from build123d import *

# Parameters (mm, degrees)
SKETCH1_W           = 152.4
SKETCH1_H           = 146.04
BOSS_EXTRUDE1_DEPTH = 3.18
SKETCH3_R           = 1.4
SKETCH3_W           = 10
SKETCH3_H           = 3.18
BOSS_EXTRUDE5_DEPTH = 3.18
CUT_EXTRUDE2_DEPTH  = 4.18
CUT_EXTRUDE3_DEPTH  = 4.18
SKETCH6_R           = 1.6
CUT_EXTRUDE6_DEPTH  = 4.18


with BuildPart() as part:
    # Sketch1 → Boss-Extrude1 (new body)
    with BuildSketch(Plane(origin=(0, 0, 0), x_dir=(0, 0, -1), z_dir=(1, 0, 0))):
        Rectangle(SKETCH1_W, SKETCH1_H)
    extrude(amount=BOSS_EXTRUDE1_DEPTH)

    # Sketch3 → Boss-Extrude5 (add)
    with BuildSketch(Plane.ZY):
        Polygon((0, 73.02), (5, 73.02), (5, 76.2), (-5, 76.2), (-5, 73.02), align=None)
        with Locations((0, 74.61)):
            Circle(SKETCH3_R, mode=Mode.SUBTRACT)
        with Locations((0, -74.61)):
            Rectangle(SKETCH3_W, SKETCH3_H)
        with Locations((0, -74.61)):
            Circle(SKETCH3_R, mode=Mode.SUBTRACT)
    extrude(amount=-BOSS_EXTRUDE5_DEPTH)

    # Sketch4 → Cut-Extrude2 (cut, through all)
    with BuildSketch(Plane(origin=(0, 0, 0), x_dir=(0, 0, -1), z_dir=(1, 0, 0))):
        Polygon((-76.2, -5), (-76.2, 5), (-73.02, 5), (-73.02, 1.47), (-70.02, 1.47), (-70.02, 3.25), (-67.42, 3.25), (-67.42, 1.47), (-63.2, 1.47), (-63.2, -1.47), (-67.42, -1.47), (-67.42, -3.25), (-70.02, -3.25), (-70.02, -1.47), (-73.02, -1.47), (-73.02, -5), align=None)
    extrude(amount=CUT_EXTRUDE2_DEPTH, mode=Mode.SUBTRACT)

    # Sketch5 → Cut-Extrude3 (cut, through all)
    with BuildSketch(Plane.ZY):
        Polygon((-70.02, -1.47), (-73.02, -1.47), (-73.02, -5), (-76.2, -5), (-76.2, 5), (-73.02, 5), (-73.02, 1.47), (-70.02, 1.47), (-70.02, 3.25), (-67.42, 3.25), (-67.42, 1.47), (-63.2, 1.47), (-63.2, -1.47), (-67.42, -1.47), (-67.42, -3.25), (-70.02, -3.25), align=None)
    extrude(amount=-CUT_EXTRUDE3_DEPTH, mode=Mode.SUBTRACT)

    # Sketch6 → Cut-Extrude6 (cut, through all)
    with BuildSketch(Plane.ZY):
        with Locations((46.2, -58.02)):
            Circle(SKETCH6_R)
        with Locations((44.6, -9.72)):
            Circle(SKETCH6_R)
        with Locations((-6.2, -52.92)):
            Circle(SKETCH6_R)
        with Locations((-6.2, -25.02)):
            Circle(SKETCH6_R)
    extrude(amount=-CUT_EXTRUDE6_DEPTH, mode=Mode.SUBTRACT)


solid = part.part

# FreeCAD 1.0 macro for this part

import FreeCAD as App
import Part
import Sketcher
from FreeCAD import Vector
Q = App.Units.Quantity

doc = App.newDocument("Part")
params = doc.addObject("Spreadsheet::Sheet", "Params")
for row, (alias, value) in enumerate([
    ("sketch1_height", "152.4 mm"),
    ("sketch1_width", "146.04 mm"),
    ("pad1_length", "3.18 mm"),
    ("sketch2_diameter", "2.8 mm"),
    ("sketch2_height", "10 mm"),
    ("sketch2_width", "3.18 mm"),
    ("pad2_length", "3.18 mm"),
    ("sketch3_width", "10 mm"),
    ("sketch3_height", "3 mm"),
    ("sketch3_height2", "2.6 mm"),
    ("sketch3_width2", "3.53 mm"),
    ("sketch3_width3", "1.78 mm"),
    ("sketch4_width", "10 mm"),
    ("sketch4_height", "3 mm"),
    ("sketch4_height2", "2.6 mm"),
    ("sketch4_width2", "1.78 mm"),
    ("sketch4_width3", "2.94 mm"),
    ("sketch5_diameter", "3.2 mm"),
], start=1):
    params.set(f"A{row}", alias)
    params.set(f"B{row}", "=" + value)
    params.setAlias(f"B{row}", alias)

body = doc.addObject("PartDesign::Body", "Body")

sketch1 = doc.addObject("Sketcher::SketchObject", "Sketch")
body.addObject(sketch1)
sketch1.AttachmentSupport = (doc.YZ_Plane, [""])
sketch1.MapMode = "FlatFace"
sketch1.addGeometry([
    Part.LineSegment(Vector(73.02, 76.2, 0), Vector(-73.02, 76.2, 0)),
    Part.LineSegment(Vector(-73.02, 76.2, 0), Vector(-73.02, -76.2, 0)),
    Part.LineSegment(Vector(-73.02, -76.2, 0), Vector(73.02, -76.2, 0)),
    Part.LineSegment(Vector(73.02, -76.2, 0), Vector(73.02, 76.2, 0)),
], False)
sketch1.addConstraint([
    Sketcher.Constraint("Coincident", 0, 2, 1, 1),
    Sketcher.Constraint("Coincident", 1, 2, 2, 1),
    Sketcher.Constraint("Coincident", 2, 2, 3, 1),
    Sketcher.Constraint("Coincident", 3, 2, 0, 1),
    Sketcher.Constraint("Horizontal", 0),
    Sketcher.Constraint("Vertical", 1),
    Sketcher.Constraint("Horizontal", 2),
    Sketcher.Constraint("Vertical", 3),
    Sketcher.Constraint("Symmetric", 0, 2, 2, 2, -1, 1),
    Sketcher.Constraint("DistanceY", 1, 2, 1, 1, Q("152.4 mm")),
    Sketcher.Constraint("DistanceX", 0, 2, 0, 1, Q("146.04 mm")),
])
sketch1.setExpression("Constraints[9]", "Params.sketch1_height")
sketch1.setExpression("Constraints[10]", "Params.sketch1_width")
pad1 = doc.addObject("PartDesign::Pad", "Pad")
body.addObject(pad1)
pad1.Profile = sketch1
pad1.setExpression("Length", "Params.pad1_length")

sketch2 = doc.addObject("Sketcher::SketchObject", "Sketch001")
body.addObject(sketch2)
sketch2.AttachmentSupport = (doc.YZ_Plane, [""])
sketch2.MapMode = "FlatFace"
sketch2.addGeometry([
    Part.LineSegment(Vector(73.02, 5, 0), Vector(76.2, 5, 0)),
    Part.LineSegment(Vector(76.2, 5, 0), Vector(76.2, -5, 0)),
    Part.LineSegment(Vector(76.2, -5, 0), Vector(73.02, -5, 0)),
    Part.LineSegment(Vector(73.02, -5, 0), Vector(73.02, 5, 0)),
    Part.Circle(Vector(74.61, 0, 0), Vector(0, 0, 1), 1.4),
    Part.LineSegment(Vector(-73.02, -5, 0), Vector(-76.2, -5, 0)),
    Part.LineSegment(Vector(-76.2, -5, 0), Vector(-76.2, 5, 0)),
    Part.LineSegment(Vector(-76.2, 5, 0), Vector(-73.02, 5, 0)),
    Part.LineSegment(Vector(-73.02, 5, 0), Vector(-73.02, -5, 0)),
    Part.Circle(Vector(-74.61, 0, 0), Vector(0, 0, 1), 1.4),
], False)
sketch2.addConstraint([
    Sketcher.Constraint("Coincident", 0, 2, 1, 1),
    Sketcher.Constraint("Coincident", 1, 2, 2, 1),
    Sketcher.Constraint("Coincident", 2, 2, 3, 1),
    Sketcher.Constraint("Coincident", 3, 2, 0, 1),
    Sketcher.Constraint("Coincident", 5, 2, 6, 1),
    Sketcher.Constraint("Coincident", 6, 2, 7, 1),
    Sketcher.Constraint("Coincident", 7, 2, 8, 1),
    Sketcher.Constraint("Coincident", 8, 2, 5, 1),
    Sketcher.Constraint("Horizontal", 0),
    Sketcher.Constraint("Vertical", 1),
    Sketcher.Constraint("Horizontal", 2),
    Sketcher.Constraint("Vertical", 3),
    Sketcher.Constraint("Horizontal", 5),
    Sketcher.Constraint("Vertical", 6),
    Sketcher.Constraint("Horizontal", 7),
    Sketcher.Constraint("Vertical", 8),
    Sketcher.Constraint("Equal", 4, 9),
    Sketcher.Constraint("Symmetric", 4, 3, 9, 3, -1, 1),
    Sketcher.Constraint("Symmetric", 0, 2, 5, 2, -1, 1),
    Sketcher.Constraint("Symmetric", 2, 2, 7, 2, -1, 1),
    Sketcher.Constraint("PointOnObject", 4, 3, -1),
    Sketcher.Constraint("Horizontal", 2, 2, 5, 2),
    Sketcher.Constraint("Diameter", 4, Q("2.8 mm")),
    Sketcher.Constraint("DistanceY", 1, 2, 1, 1, Q("10 mm")),
    Sketcher.Constraint("DistanceX", 0, 1, 0, 2, Q("3.18 mm")),
    Sketcher.Constraint("DistanceX", -1, 1, 0, 2, Q("76.2 mm")),
    Sketcher.Constraint("DistanceX", -1, 1, 4, 3, Q("74.61 mm")),
])
sketch2.setExpression("Constraints[22]", "Params.sketch2_diameter")
sketch2.setExpression("Constraints[23]", "Params.sketch2_height")
sketch2.setExpression("Constraints[24]", "Params.sketch2_width")
pad2 = doc.addObject("PartDesign::Pad", "Pad001")
body.addObject(pad2)
pad2.Profile = sketch2
pad2.setExpression("Length", "Params.pad2_length")

sketch3 = doc.addObject("Sketcher::SketchObject", "Sketch002")
body.addObject(sketch3)
sketch3.AttachmentSupport = (doc.YZ_Plane, [""])
sketch3.MapMode = "FlatFace"
sketch3.addGeometry([
    Part.LineSegment(Vector(5, 76.2, 0), Vector(-5, 76.2, 0)),
    Part.LineSegment(Vector(-5, 76.2, 0), Vector(-5, 73.02, 0)),
    Part.LineSegment(Vector(-5, 73.02, 0), Vector(-1.47, 73.02, 0)),
    Part.LineSegment(Vector(-1.47, 73.02, 0), Vector(-1.47, 70.02, 0)),
    Part.LineSegment(Vector(-1.47, 70.02, 0), Vector(-3.25, 70.02, 0)),
    Part.LineSegment(Vector(-3.25, 70.02, 0), Vector(-3.25, 67.42, 0)),
    Part.LineSegment(Vector(-3.25, 67.42, 0), Vector(-1.47, 67.42, 0)),
    Part.LineSegment(Vector(-1.47, 67.42, 0), Vector(-1.47, 63.2, 0)),
    Part.LineSegment(Vector(-1.47, 63.2, 0), Vector(1.47, 63.2, 0)),
    Part.LineSegment(Vector(1.47, 63.2, 0), Vector(1.47, 67.42, 0)),
    Part.LineSegment(Vector(1.47, 67.42, 0), Vector(3.25, 67.42, 0)),
    Part.LineSegment(Vector(3.25, 67.42, 0), Vector(3.25, 70.02, 0)),
    Part.LineSegment(Vector(3.25, 70.02, 0), Vector(1.47, 70.02, 0)),
    Part.LineSegment(Vector(1.47, 70.02, 0), Vector(1.47, 73.02, 0)),
    Part.LineSegment(Vector(1.47, 73.02, 0), Vector(5, 73.02, 0)),
    Part.LineSegment(Vector(5, 73.02, 0), Vector(5, 76.2, 0)),
], False)
sketch3.addConstraint([
    Sketcher.Constraint("Coincident", 0, 2, 1, 1),
    Sketcher.Constraint("Coincident", 1, 2, 2, 1),
    Sketcher.Constraint("Coincident", 2, 2, 3, 1),
    Sketcher.Constraint("Coincident", 3, 2, 4, 1),
    Sketcher.Constraint("Coincident", 4, 2, 5, 1),
    Sketcher.Constraint("Coincident", 5, 2, 6, 1),
    Sketcher.Constraint("Coincident", 6, 2, 7, 1),
    Sketcher.Constraint("Coincident", 7, 2, 8, 1),
    Sketcher.Constraint("Coincident", 8, 2, 9, 1),
    Sketcher.Constraint("Coincident", 9, 2, 10, 1),
    Sketcher.Constraint("Coincident", 10, 2, 11, 1),
    Sketcher.Constraint("Coincident", 11, 2, 12, 1),
    Sketcher.Constraint("Coincident", 12, 2, 13, 1),
    Sketcher.Constraint("Coincident", 13, 2, 14, 1),
    Sketcher.Constraint("Coincident", 14, 2, 15, 1),
    Sketcher.Constraint("Coincident", 15, 2, 0, 1),
    Sketcher.Constraint("Horizontal", 0),
    Sketcher.Constraint("Vertical", 1),
    Sketcher.Constraint("Horizontal", 2),
    Sketcher.Constraint("Vertical", 3),
    Sketcher.Constraint("Horizontal", 4),
    Sketcher.Constraint("Vertical", 5),
    Sketcher.Constraint("Horizontal", 6),
    Sketcher.Constraint("Vertical", 7),
    Sketcher.Constraint("Horizontal", 8),
    Sketcher.Constraint("Vertical", 9),
    Sketcher.Constraint("Horizontal", 10),
    Sketcher.Constraint("Vertical", 11),
    Sketcher.Constraint("Horizontal", 12),
    Sketcher.Constraint("Vertical", 13),
    Sketcher.Constraint("Horizontal", 14),
    Sketcher.Constraint("Vertical", 15),
    Sketcher.Constraint("Symmetric", 6, 2, 9, 2, -2),
    Sketcher.Constraint("Symmetric", 4, 2, 11, 2, -2),
    Sketcher.Constraint("Symmetric", 2, 2, 13, 2, -2),
    Sketcher.Constraint("Vertical", 3, 2, 6, 2),
    Sketcher.Constraint("Equal", 2, 14),
    Sketcher.Constraint("DistanceX", 0, 2, 0, 1, Q("10 mm")),
    Sketcher.Constraint("DistanceY", 3, 2, 3, 1, Q("3 mm")),
    Sketcher.Constraint("DistanceY", 5, 2, 5, 1, Q("2.6 mm")),
    Sketcher.Constraint("DistanceX", 2, 1, 2, 2, Q("3.53 mm")),
    Sketcher.Constraint("DistanceX", 4, 2, 4, 1, Q("1.78 mm")),
    Sketcher.Constraint("DistanceY", 1, 2, 1, 1, Q("3.18 mm")),
    Sketcher.Constraint("DistanceY", 7, 2, 7, 1, Q("4.22 mm")),
    Sketcher.Constraint("DistanceY", -1, 1, 0, 2, Q("76.2 mm")),
])
sketch3.setExpression("Constraints[37]", "Params.sketch3_width")
sketch3.setExpression("Constraints[38]", "Params.sketch3_height")
sketch3.setExpression("Constraints[39]", "Params.sketch3_height2")
sketch3.setExpression("Constraints[40]", "Params.sketch3_width2")
sketch3.setExpression("Constraints[41]", "Params.sketch3_width3")
pocket1 = doc.addObject("PartDesign::Pocket", "Pocket")
body.addObject(pocket1)
pocket1.Profile = sketch3
pocket1.Type = "ThroughAll"
pocket1.Reversed = True

sketch4 = doc.addObject("Sketcher::SketchObject", "Sketch003")
body.addObject(sketch4)
sketch4.AttachmentSupport = (doc.YZ_Plane, [""])
sketch4.MapMode = "FlatFace"
sketch4.addGeometry([
    Part.LineSegment(Vector(-1.47, -73.02, 0), Vector(-1.47, -70.02, 0)),
    Part.LineSegment(Vector(-1.47, -70.02, 0), Vector(-3.25, -70.02, 0)),
    Part.LineSegment(Vector(-3.25, -70.02, 0), Vector(-3.25, -67.42, 0)),
    Part.LineSegment(Vector(-3.25, -67.42, 0), Vector(-1.47, -67.42, 0)),
    Part.LineSegment(Vector(-1.47, -67.42, 0), Vector(-1.47, -63.2, 0)),
    Part.LineSegment(Vector(-1.47, -63.2, 0), Vector(1.47, -63.2, 0)),
    Part.LineSegment(Vector(1.47, -63.2, 0), Vector(1.47, -67.42, 0)),
    Part.LineSegment(Vector(1.47, -67.42, 0), Vector(3.25, -67.42, 0)),
    Part.LineSegment(Vector(3.25, -67.42, 0), Vector(3.25, -70.02, 0)),
    Part.LineSegment(Vector(3.25, -70.02, 0), Vector(1.47, -70.02, 0)),
    Part.LineSegment(Vector(1.47, -70.02, 0), Vector(1.47, -73.02, 0)),
    Part.LineSegment(Vector(1.47, -73.02, 0), Vector(5, -73.02, 0)),
    Part.LineSegment(Vector(5, -73.02, 0), Vector(5, -76.2, 0)),
    Part.LineSegment(Vector(5, -76.2, 0), Vector(-5, -76.2, 0)),
    Part.LineSegment(Vector(-5, -76.2, 0), Vector(-5, -73.02, 0)),
    Part.LineSegment(Vector(-5, -73.02, 0), Vector(-1.47, -73.02, 0)),
], False)
sketch4.addConstraint([
    Sketcher.Constraint("Coincident", 0, 2, 1, 1),
    Sketcher.Constraint("Coincident", 1, 2, 2, 1),
    Sketcher.Constraint("Coincident", 2, 2, 3, 1),
    Sketcher.Constraint("Coincident", 3, 2, 4, 1),
    Sketcher.Constraint("Coincident", 4, 2, 5, 1),
    Sketcher.Constraint("Coincident", 5, 2, 6, 1),
    Sketcher.Constraint("Coincident", 6, 2, 7, 1),
    Sketcher.Constraint("Coincident", 7, 2, 8, 1),
    Sketcher.Constraint("Coincident", 8, 2, 9, 1),
    Sketcher.Constraint("Coincident", 9, 2, 10, 1),
    Sketcher.Constraint("Coincident", 10, 2, 11, 1),
    Sketcher.Constraint("Coincident", 11, 2, 12, 1),
    Sketcher.Constraint("Coincident", 12, 2, 13, 1),
    Sketcher.Constraint("Coincident", 13, 2, 14, 1),
    Sketcher.Constraint("Coincident", 14, 2, 15, 1),
    Sketcher.Constraint("Coincident", 15, 2, 0, 1),
    Sketcher.Constraint("Vertical", 0),
    Sketcher.Constraint("Horizontal", 1),
    Sketcher.Constraint("Vertical", 2),
    Sketcher.Constraint("Horizontal", 3),
    Sketcher.Constraint("Vertical", 4),
    Sketcher.Constraint("Horizontal", 5),
    Sketcher.Constraint("Vertical", 6),
    Sketcher.Constraint("Horizontal", 7),
    Sketcher.Constraint("Vertical", 8),
    Sketcher.Constraint("Horizontal", 9),
    Sketcher.Constraint("Vertical", 10),
    Sketcher.Constraint("Horizontal", 11),
    Sketcher.Constraint("Vertical", 12),
    Sketcher.Constraint("Horizontal", 13),
    Sketcher.Constraint("Vertical", 14),
    Sketcher.Constraint("Horizontal", 15),
    Sketcher.Constraint("Symmetric", 3, 2, 6, 2, -2),
    Sketcher.Constraint("Symmetric", 1, 2, 8, 2, -2),
    Sketcher.Constraint("Symmetric", 11, 2, 14, 2, -2),
    Sketcher.Constraint("Vertical", 0, 2, 3, 2),
    Sketcher.Constraint("Vertical", 6, 2, 9, 2),
    Sketcher.Constraint("DistanceX", 13, 2, 13, 1, Q("10 mm")),
    Sketcher.Constraint("DistanceY", 0, 1, 0, 2, Q("3 mm")),
    Sketcher.Constraint("DistanceY", 2, 1, 2, 2, Q("2.6 mm")),
    Sketcher.Constraint("DistanceX", 1, 2, 1, 1, Q("1.78 mm")),
    Sketcher.Constraint("DistanceX", 5, 1, 5, 2, Q("2.94 mm")),
    Sketcher.Constraint("DistanceY", 4, 1, 4, 2, Q("4.22 mm")),
    Sketcher.Constraint("DistanceY", 12, 2, 12, 1, Q("3.18 mm")),
    Sketcher.Constraint("DistanceY", 4, 2, -1, 1, Q("63.2 mm")),
])
sketch4.setExpression("Constraints[37]", "Params.sketch4_width")
sketch4.setExpression("Constraints[38]", "Params.sketch4_height")
sketch4.setExpression("Constraints[39]", "Params.sketch4_height2")
sketch4.setExpression("Constraints[40]", "Params.sketch4_width2")
sketch4.setExpression("Constraints[41]", "Params.sketch4_width3")
pocket2 = doc.addObject("PartDesign::Pocket", "Pocket001")
body.addObject(pocket2)
pocket2.Profile = sketch4
pocket2.Type = "ThroughAll"
pocket2.Reversed = True

sketch5 = doc.addObject("Sketcher::SketchObject", "Sketch004")
body.addObject(sketch5)
sketch5.AttachmentSupport = (doc.YZ_Plane, [""])
sketch5.MapMode = "FlatFace"
sketch5.addGeometry([
    Part.Circle(Vector(-58.02, 46.2, 0), Vector(0, 0, 1), 1.6),
    Part.Circle(Vector(-9.72, 44.6, 0), Vector(0, 0, 1), 1.6),
    Part.Circle(Vector(-52.92, -6.2, 0), Vector(0, 0, 1), 1.6),
    Part.Circle(Vector(-25.02, -6.2, 0), Vector(0, 0, 1), 1.6),
], False)
sketch5.addConstraint([
    Sketcher.Constraint("Equal", 0, 1),
    Sketcher.Constraint("Equal", 1, 2),
    Sketcher.Constraint("Equal", 2, 3),
    Sketcher.Constraint("Horizontal", 2, 3, 3, 3),
    Sketcher.Constraint("Diameter", 0, Q("3.2 mm")),
    Sketcher.Constraint("DistanceX", 0, 3, 3, 3, Q("33 mm")),
    Sketcher.Constraint("DistanceY", -1, 1, 0, 3, Q("46.2 mm")),
    Sketcher.Constraint("DistanceY", -1, 1, 1, 3, Q("44.6 mm")),
    Sketcher.Constraint("DistanceY", 2, 3, -1, 1, Q("6.2 mm")),
    Sketcher.Constraint("DistanceX", 0, 3, 1, 3, Q("48.3 mm")),
    Sketcher.Constraint("DistanceX", 0, 3, 2, 3, Q("5.1 mm")),
    Sketcher.Constraint("DistanceX", 0, 3, -1, 1, Q("58.02 mm")),
])
sketch5.setExpression("Constraints[4]", "Params.sketch5_diameter")
pocket3 = doc.addObject("PartDesign::Pocket", "Pocket002")
body.addObject(pocket3)
pocket3.Profile = sketch5
pocket3.Type = "ThroughAll"
pocket3.Reversed = True

doc.recompute()
